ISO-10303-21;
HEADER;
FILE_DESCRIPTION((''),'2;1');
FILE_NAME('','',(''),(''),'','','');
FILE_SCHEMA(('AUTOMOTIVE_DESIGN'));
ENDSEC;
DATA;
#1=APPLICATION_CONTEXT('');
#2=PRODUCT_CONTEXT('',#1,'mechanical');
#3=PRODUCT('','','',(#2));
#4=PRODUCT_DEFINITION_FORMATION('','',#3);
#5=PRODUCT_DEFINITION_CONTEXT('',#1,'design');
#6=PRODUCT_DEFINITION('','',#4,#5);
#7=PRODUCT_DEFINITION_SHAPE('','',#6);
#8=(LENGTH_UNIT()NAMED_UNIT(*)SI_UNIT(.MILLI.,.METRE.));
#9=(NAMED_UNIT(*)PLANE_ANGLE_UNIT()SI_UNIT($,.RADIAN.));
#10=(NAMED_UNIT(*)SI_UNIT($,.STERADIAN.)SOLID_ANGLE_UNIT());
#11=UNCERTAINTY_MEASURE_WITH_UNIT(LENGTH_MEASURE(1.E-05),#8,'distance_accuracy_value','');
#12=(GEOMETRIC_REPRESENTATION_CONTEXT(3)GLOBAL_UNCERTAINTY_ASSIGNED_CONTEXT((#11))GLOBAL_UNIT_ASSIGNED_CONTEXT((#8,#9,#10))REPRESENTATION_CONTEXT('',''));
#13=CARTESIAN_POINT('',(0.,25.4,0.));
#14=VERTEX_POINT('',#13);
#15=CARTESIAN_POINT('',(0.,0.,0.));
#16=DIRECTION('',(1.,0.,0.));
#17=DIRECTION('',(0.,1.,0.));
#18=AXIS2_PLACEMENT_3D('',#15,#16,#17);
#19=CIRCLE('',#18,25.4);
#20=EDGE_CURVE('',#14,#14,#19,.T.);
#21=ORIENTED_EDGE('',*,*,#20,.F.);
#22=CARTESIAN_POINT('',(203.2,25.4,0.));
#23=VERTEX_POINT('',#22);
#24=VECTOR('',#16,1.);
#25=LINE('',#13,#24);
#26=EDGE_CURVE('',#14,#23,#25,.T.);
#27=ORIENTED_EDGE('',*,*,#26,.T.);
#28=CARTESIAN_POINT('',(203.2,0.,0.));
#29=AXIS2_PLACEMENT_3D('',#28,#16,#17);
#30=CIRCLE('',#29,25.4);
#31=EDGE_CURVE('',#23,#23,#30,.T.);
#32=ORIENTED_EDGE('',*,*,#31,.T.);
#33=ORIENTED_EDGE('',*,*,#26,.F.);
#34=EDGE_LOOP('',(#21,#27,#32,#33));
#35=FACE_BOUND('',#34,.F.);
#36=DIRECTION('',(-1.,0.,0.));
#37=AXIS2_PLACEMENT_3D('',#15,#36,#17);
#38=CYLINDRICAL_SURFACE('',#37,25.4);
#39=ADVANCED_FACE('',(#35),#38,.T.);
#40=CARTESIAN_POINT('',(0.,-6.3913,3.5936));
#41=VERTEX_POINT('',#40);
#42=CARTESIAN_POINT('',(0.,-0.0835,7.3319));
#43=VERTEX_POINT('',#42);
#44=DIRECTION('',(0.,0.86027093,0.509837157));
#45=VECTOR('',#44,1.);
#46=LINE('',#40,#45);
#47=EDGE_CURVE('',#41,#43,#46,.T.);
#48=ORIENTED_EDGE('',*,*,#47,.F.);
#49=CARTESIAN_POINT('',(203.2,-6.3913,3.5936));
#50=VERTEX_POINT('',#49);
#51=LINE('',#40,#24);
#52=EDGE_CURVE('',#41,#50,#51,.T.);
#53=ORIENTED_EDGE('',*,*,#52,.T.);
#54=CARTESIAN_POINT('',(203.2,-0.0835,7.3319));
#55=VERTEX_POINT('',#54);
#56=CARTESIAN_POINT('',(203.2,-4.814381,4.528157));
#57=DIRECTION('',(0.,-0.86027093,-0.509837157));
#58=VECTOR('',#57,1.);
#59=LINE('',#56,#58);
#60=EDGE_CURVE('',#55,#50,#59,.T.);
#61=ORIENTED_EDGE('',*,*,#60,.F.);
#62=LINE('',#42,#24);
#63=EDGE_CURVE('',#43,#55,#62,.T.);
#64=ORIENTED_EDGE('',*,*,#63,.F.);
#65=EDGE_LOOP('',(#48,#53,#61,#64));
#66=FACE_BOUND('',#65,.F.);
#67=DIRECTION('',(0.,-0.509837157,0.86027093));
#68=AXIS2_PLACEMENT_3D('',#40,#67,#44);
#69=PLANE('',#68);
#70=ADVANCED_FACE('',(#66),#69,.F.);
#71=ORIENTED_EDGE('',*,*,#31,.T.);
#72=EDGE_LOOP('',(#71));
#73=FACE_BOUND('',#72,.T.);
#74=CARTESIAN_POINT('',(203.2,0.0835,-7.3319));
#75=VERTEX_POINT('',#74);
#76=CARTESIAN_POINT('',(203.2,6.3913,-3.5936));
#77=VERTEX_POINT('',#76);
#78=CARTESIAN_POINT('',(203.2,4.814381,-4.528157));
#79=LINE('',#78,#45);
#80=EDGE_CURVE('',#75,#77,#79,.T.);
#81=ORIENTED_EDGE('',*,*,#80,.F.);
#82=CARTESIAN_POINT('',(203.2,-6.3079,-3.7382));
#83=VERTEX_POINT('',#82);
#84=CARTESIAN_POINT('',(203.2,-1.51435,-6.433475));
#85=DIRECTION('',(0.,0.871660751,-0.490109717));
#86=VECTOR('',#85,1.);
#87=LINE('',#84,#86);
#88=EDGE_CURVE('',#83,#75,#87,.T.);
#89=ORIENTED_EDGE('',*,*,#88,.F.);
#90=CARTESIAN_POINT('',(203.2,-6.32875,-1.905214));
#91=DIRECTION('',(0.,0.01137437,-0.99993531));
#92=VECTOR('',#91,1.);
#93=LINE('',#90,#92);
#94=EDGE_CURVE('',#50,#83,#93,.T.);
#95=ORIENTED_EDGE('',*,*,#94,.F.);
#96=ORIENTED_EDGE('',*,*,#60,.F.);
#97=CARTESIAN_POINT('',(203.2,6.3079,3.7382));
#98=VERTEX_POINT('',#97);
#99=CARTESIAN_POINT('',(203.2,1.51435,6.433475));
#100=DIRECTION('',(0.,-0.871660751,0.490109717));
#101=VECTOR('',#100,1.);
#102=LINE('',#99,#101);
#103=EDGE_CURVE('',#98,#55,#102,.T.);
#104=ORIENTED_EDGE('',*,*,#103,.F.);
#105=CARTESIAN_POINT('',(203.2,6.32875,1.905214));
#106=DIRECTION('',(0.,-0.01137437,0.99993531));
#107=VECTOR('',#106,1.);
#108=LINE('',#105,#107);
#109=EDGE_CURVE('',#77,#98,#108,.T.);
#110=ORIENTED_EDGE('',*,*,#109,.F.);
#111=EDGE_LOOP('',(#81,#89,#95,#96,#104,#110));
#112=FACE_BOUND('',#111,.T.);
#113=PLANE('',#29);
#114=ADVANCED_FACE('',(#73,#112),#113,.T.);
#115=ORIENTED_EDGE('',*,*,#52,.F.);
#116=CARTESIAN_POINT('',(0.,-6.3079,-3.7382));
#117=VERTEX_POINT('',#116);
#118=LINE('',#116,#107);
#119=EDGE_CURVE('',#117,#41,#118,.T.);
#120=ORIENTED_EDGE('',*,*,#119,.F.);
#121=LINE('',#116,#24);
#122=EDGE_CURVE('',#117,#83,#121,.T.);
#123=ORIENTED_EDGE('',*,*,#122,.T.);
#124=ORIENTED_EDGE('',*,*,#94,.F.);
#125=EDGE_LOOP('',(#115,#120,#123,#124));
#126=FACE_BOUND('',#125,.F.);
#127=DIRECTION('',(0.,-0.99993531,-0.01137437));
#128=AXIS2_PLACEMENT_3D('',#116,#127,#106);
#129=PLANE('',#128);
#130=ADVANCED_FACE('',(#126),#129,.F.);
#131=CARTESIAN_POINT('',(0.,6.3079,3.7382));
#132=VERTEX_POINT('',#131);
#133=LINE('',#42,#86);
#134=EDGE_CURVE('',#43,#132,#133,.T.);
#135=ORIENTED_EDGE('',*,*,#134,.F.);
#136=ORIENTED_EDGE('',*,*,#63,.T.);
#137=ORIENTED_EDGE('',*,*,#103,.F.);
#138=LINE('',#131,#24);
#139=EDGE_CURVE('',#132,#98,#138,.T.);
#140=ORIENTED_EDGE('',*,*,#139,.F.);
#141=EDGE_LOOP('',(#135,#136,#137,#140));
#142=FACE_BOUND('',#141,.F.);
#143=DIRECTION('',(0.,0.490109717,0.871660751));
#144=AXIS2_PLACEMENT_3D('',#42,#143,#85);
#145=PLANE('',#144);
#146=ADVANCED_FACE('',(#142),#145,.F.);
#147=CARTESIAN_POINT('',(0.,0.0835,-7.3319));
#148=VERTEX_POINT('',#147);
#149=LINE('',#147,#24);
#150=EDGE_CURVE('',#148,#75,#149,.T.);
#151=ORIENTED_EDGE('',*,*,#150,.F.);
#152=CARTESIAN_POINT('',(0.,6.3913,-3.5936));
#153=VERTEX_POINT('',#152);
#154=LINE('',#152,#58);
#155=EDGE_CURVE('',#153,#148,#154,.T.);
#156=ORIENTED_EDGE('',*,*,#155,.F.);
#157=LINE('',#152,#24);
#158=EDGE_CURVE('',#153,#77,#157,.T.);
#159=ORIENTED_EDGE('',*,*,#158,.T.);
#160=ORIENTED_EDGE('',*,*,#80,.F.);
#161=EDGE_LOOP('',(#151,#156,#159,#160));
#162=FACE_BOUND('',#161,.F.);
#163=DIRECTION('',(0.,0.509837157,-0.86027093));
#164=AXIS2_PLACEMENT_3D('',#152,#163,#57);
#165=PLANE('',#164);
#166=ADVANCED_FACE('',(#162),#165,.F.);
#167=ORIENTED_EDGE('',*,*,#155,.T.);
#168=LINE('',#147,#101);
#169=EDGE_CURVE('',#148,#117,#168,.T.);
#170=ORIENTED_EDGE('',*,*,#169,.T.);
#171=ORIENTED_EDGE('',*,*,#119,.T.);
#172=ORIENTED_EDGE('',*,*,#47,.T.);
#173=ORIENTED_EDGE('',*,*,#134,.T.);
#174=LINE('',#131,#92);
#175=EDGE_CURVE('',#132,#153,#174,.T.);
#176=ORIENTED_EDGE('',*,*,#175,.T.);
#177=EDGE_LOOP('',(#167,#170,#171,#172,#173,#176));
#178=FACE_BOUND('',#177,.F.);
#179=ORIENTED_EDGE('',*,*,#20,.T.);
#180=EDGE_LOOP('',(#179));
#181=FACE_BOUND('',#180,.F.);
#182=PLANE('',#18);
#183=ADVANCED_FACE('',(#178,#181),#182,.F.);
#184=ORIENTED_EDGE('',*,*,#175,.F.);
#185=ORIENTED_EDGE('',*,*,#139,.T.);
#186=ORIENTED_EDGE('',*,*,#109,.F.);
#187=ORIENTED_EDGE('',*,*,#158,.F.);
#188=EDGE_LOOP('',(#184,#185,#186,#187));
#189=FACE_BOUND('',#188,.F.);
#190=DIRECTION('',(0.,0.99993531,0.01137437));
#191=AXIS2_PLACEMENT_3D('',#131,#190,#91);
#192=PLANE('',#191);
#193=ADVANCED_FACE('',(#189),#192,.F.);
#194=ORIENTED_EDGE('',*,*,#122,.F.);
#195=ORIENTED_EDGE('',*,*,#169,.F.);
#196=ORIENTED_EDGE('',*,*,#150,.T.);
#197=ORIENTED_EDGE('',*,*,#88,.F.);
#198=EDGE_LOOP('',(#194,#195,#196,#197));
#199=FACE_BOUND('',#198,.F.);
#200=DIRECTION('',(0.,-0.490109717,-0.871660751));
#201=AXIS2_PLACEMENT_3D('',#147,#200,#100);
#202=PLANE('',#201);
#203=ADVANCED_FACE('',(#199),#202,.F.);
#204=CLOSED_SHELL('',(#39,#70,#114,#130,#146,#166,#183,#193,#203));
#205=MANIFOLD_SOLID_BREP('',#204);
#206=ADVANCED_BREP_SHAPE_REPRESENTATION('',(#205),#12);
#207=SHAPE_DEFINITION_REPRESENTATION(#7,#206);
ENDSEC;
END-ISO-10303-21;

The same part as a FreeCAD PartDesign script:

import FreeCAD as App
import Part
import Sketcher
Q = App.Units.Quantity


def add_polygon(sketch, points):
    """Adds a closed chain of lines whose ends are joined by coincident constraints."""
    first, n = sketch.GeometryCount, len(points)
    for a, b in zip(points, points[1:] + points[:1]):
        sketch.addGeometry(Part.LineSegment(App.Vector(*a, 0), App.Vector(*b, 0)), False)
    for i in range(n):
        sketch.addConstraint(Sketcher.Constraint("Coincident", first + i, 2, first + (i + 1) % n, 1))

doc = App.newDocument("Part")
body = doc.addObject("PartDesign::Body", "Body")

# Sketch on YZ plane
sketch1 = body.newObject("Sketcher::SketchObject", "Sketch")
sketch1.AttachmentSupport = (doc.getObject("YZ_Plane"), [""])
sketch1.MapMode = "FlatFace"
sketch1.addGeometry(Part.Circle(App.Vector(0, 0, 0), App.Vector(0, 0, 1), 25), False)
sketch1.addConstraint(Sketcher.Constraint("Coincident", 0, 3, -1, 1))
sketch1.addConstraint(Sketcher.Constraint("Diameter", 0, Q("2 in")))
pad1 = body.newObject("PartDesign::Pad", "Pad")
pad1.Profile = sketch1
pad1.Length = Q("8 in")

# Sketch on YZ plane
sketch2 = body.newObject("Sketcher::SketchObject", "Sketch001")
sketch2.AttachmentSupport = (doc.getObject("YZ_Plane"), [""])
sketch2.MapMode = "FlatFace"
add_polygon(sketch2, [(0.0835, -7.3319), (6.3913, -3.5936), (6.3079, 3.7382), (-0.0835, 7.3319), (-6.3913, 3.5936), (-6.3079, -3.7382)])  # lines 0-5
sketch2.addConstraint(Sketcher.Constraint("DistanceY", 3, 2, 1, 2, Q("0.0057 in")))
sketch2.addConstraint(Sketcher.Constraint("DistanceY", 4, 2, 0, 2, Q("0.0057 in")))
sketch2.addConstraint(Sketcher.Constraint("Distance", 0, Q("7.3323 mm")))
sketch2.addConstraint(Sketcher.Constraint("Distance", 1, Q("7.3323 mm")))
sketch2.addConstraint(Sketcher.Constraint("Distance", 2, Q("7.3324 mm")))
sketch2.addConstraint(Sketcher.Constraint("Distance", 3, Q("7.3323 mm")))
sketch2.addConstraint(Sketcher.Constraint("Distance", 4, Q("7.3323 mm")))
sketch2.addConstraint(Sketcher.Constraint("Distance", 5, Q("7.3324 mm")))
sketch2.addConstraint(Sketcher.Constraint("DistanceX", -1, 1, 0, 2, Q("6.3913 mm")))
sketch2.addConstraint(Sketcher.Constraint("DistanceY", 0, 2, -1, 1, Q("3.5936 mm")))
sketch2.addConstraint(Sketcher.Constraint("DistanceX", -1, 1, 1, 2, Q("6.308 mm")))
sketch2.addConstraint(Sketcher.Constraint("DistanceX", 2, 2, -1, 1, Q("0.0835 mm")))
pocket1 = body.newObject("PartDesign::Pocket", "Pocket")
pocket1.Profile = sketch2
pocket1.Type = "ThroughAll"
pocket1.Reversed = True

doc.recompute()
